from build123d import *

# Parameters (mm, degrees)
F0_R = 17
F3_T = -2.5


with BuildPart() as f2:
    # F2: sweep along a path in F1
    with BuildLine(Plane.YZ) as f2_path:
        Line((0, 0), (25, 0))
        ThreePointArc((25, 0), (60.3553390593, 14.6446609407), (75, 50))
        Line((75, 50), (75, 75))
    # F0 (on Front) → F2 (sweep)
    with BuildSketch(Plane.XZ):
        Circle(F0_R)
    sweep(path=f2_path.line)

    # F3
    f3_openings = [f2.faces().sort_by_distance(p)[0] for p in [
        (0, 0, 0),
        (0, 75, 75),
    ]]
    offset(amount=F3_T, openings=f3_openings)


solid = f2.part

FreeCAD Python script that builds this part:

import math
import FreeCAD as App
import Part
import Sketcher


def faces_at(feature, points):
    """Names of the faces that lie closest to the given points."""
    faces = feature.Shape.Faces
    near = lambda p: min(range(len(faces)), key=lambda i: faces[i].distToShape(Part.Vertex(*p))[0])
    return sorted({f"Face{near(p) + 1}" for p in points})

doc = App.newDocument("Part")
params = doc.addObject("Spreadsheet::Sheet", "Params")
for row, (alias, value) in enumerate([
    ("sketch1_diameter", "34 mm"),
    ("sketch2_radius", "50 mm"),
    ("sketch2_width", "25 mm"),
    ("thickness_wall", "2.5 mm"),
], start=1):
    params.set(f"A{row}", alias)
    params.set(f"B{row}", "=" + value)
    params.setAlias(f"B{row}", alias)

body = doc.addObject("PartDesign::Body", "Body")

sketch1 = body.newObject("Sketcher::SketchObject", "Sketch")
sketch1.AttachmentSupport = (doc.getObject("XZ_Plane"), [""])
sketch1.MapMode = "FlatFace"
sketch1.addGeometry(Part.Circle(App.Vector(0, 0, 0), App.Vector(0, 0, 1), 17), False)
sketch1.addConstraint([
    Sketcher.Constraint("Coincident", 0, 3, -1, 1),
    Sketcher.Constraint("Diameter", 0, 34.0),
])
sketch1.setExpression("Constraints[1]", "Params.sketch1_diameter")

sketch2 = body.newObject("Sketcher::SketchObject", "Sketch001")
sketch2.AttachmentSupport = (doc.getObject("YZ_Plane"), [""])
sketch2.MapMode = "FlatFace"
sketch2.addGeometry([
    Part.LineSegment(App.Vector(0, 0, 0), App.Vector(25, 0, 0)),
    Part.ArcOfCircle(Part.Circle(App.Vector(25, 50, 0), App.Vector(0, 0, 1), 50), math.radians(-90), math.radians(0)),
    Part.LineSegment(App.Vector(75, 50, 0), App.Vector(75, 75, 0)),
], False)
sketch2.addConstraint([
    Sketcher.Constraint("Tangent", 0, 2, 1, 1),
    Sketcher.Constraint("Tangent", 1, 2, 2, 1),
    Sketcher.Constraint("Horizontal", 0),
    Sketcher.Constraint("Vertical", 2),
    Sketcher.Constraint("Coincident", 0, 1, -1, 1),
    Sketcher.Constraint("Equal", 0, 2),
    Sketcher.Constraint("Radius", 1, 50.0),
    Sketcher.Constraint("DistanceX", 0, 1, 0, 2, 25.0),
])
sketch2.setExpression("Constraints[6]", "Params.sketch2_radius")
sketch2.setExpression("Constraints[7]", "Params.sketch2_width")
doc.recompute()

additivepipe = body.newObject("PartDesign::AdditivePipe", "AdditivePipe")
additivepipe.Profile = sketch1
additivepipe.Spine = (sketch2, ["Edge1", "Edge2", "Edge3"])
doc.recompute()

thickness = body.newObject("PartDesign::Thickness", "Thickness")
thickness.Base = (additivepipe, faces_at(additivepipe, [(0, 0, 0), (0, 75, 75)]))
thickness.setExpression("Value", "Params.thickness_wall")
thickness.Reversed = True
thickness.Join = "Arc"

doc.recompute()
